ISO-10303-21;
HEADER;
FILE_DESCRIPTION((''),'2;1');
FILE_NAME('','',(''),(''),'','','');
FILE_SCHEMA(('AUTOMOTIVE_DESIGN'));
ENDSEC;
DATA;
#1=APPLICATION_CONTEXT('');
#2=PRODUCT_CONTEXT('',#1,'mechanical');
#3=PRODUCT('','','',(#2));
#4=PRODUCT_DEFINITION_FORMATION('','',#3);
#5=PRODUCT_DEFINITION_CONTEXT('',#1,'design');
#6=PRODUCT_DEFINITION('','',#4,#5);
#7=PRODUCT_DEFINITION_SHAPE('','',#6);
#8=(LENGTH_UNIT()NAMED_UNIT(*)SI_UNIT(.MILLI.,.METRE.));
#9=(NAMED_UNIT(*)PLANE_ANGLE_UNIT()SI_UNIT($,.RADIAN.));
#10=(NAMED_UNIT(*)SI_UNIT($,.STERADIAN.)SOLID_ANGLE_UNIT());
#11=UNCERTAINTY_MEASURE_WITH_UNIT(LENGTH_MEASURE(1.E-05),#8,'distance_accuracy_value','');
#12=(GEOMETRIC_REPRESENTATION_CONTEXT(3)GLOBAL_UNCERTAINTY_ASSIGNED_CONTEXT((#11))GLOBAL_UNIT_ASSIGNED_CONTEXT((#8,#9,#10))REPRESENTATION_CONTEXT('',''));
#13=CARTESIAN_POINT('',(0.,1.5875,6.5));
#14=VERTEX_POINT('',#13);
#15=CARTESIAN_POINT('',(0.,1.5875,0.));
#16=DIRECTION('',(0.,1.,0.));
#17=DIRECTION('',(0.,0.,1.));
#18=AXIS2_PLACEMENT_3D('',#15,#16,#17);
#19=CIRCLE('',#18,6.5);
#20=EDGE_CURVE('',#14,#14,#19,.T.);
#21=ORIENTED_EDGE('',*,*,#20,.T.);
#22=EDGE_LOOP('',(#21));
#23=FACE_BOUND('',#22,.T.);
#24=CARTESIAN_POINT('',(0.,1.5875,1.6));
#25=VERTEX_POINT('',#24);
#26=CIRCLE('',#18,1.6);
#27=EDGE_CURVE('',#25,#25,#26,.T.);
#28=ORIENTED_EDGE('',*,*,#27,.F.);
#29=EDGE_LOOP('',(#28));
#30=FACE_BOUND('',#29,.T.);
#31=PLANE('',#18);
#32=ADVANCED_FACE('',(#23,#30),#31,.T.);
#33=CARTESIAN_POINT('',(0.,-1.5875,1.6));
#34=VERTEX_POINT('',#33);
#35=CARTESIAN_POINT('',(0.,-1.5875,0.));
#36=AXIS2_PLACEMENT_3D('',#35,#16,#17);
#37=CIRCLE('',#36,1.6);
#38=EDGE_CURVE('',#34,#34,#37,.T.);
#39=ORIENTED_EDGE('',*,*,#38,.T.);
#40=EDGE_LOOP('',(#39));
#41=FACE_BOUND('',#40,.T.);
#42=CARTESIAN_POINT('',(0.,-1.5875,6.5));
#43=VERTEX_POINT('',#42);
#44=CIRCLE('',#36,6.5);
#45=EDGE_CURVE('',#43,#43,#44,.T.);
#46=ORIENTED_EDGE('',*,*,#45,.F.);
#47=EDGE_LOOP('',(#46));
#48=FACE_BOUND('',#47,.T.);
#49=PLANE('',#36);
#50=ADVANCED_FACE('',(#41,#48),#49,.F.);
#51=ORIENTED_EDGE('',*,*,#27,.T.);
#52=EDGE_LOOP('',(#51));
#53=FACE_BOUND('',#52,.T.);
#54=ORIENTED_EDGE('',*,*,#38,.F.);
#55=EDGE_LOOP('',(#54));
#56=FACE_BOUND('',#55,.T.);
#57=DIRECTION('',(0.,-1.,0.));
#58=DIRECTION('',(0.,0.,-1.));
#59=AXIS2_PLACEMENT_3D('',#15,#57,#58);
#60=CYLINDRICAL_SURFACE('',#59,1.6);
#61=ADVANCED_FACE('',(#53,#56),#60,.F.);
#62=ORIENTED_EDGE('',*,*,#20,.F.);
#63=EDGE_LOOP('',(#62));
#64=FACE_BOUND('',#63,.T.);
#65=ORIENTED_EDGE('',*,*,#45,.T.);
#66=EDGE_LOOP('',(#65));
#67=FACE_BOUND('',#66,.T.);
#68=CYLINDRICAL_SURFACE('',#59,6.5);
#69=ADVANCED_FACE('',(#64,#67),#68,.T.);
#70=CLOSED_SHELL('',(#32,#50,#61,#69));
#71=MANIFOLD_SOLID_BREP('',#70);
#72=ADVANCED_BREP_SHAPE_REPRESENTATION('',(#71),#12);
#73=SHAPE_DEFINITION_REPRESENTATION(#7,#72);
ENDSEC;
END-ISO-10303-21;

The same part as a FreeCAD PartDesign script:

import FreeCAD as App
import Part
import Sketcher
Q = App.Units.Quantity

doc = App.newDocument("Part")
params = doc.addObject("Spreadsheet::Sheet", "Params")
for row, (alias, value) in enumerate([
    ("sketch1_diameter", "13 mm"),
    ("sketch1_diameter2", "3.2 mm"),
    ("pad1_length", "3.175 mm"),
], start=1):
    params.set(f"A{row}", alias)
    params.set(f"B{row}", "=" + value)
    params.setAlias(f"B{row}", alias)

body = doc.addObject("PartDesign::Body", "Body")

# Sketch on XZ plane
sketch1 = doc.addObject("Sketcher::SketchObject", "Sketch")
body.addObject(sketch1)
sketch1.AttachmentSupport = (doc.XZ_Plane, [""])
sketch1.MapMode = "FlatFace"
sketch1.addGeometry([
    Part.Circle(App.Vector(0, 0, 0), App.Vector(0, 0, 1), 6.5),
    Part.Circle(App.Vector(0, 0, 0), App.Vector(0, 0, 1), 1.6),
], False)
sketch1.addConstraint([
    Sketcher.Constraint("Coincident", 0, 3, -1, 1),
    Sketcher.Constraint("Coincident", 1, 3, -1, 1),
    Sketcher.Constraint("Diameter", 0, Q("13 mm")),
    Sketcher.Constraint("Diameter", 1, Q("3.2 mm")),
])
sketch1.setExpression("Constraints[2]", "Params.sketch1_diameter")
sketch1.setExpression("Constraints[3]", "Params.sketch1_diameter2")
pad1 = doc.addObject("PartDesign::Pad", "Pad")
body.addObject(pad1)
pad1.Profile = sketch1
pad1.setExpression("Length", "Params.pad1_length")
pad1.Midplane = True

doc.recompute()
